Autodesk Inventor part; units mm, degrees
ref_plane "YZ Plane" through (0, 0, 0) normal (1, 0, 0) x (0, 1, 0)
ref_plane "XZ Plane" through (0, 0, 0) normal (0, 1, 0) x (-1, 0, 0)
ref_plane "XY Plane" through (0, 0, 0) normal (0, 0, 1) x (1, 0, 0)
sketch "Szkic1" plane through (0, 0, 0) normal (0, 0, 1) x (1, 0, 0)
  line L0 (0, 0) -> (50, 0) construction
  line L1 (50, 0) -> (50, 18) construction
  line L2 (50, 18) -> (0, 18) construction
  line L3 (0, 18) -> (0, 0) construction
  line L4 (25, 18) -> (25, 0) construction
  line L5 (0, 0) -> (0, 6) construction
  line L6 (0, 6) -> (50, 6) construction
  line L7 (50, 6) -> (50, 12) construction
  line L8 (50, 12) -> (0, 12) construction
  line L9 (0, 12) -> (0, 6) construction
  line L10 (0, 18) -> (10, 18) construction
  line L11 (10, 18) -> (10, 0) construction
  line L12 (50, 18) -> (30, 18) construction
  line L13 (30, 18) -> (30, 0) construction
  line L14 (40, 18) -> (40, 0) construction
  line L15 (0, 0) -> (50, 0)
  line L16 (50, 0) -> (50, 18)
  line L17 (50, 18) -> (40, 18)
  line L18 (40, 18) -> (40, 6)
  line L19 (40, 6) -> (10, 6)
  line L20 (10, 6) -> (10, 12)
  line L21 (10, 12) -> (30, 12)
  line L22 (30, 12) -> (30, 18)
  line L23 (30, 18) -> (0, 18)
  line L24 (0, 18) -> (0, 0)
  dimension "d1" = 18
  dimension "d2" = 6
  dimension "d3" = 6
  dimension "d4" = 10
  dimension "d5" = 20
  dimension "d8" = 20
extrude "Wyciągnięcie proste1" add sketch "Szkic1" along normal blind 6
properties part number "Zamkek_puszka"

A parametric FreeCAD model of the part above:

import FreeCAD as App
import Part
import Sketcher
from FreeCAD import Vector

doc = App.newDocument("Part")
body = doc.addObject("PartDesign::Body", "Body")

sketch1 = body.newObject("Sketcher::SketchObject", "Sketch")
sketch1.AttachmentSupport = (doc.getObject("XY_Plane"), [""])
sketch1.MapMode = "FlatFace"
sketch1.addGeometry(Part.LineSegment(Vector(0, 18, 0), Vector(0, 0, 0)), False)
sketch1.addGeometry(Part.LineSegment(Vector(0, 0, 0), Vector(50, 0, 0)), False)
sketch1.addGeometry(Part.LineSegment(Vector(50, 0, 0), Vector(50, 18, 0)), False)
sketch1.addGeometry(Part.LineSegment(Vector(50, 18, 0), Vector(40, 18, 0)), False)
sketch1.addGeometry(Part.LineSegment(Vector(40, 18, 0), Vector(40, 6, 0)), False)
sketch1.addGeometry(Part.LineSegment(Vector(40, 6, 0), Vector(10, 6, 0)), False)
sketch1.addGeometry(Part.LineSegment(Vector(10, 6, 0), Vector(10, 12, 0)), False)
sketch1.addGeometry(Part.LineSegment(Vector(10, 12, 0), Vector(30, 12, 0)), False)
sketch1.addGeometry(Part.LineSegment(Vector(30, 12, 0), Vector(30, 18, 0)), False)
sketch1.addGeometry(Part.LineSegment(Vector(30, 18, 0), Vector(0, 18, 0)), False)
sketch1.addConstraint(Sketcher.Constraint("Coincident", 0, 2, 1, 1))
sketch1.addConstraint(Sketcher.Constraint("Coincident", 1, 2, 2, 1))
sketch1.addConstraint(Sketcher.Constraint("Coincident", 2, 2, 3, 1))
sketch1.addConstraint(Sketcher.Constraint("Coincident", 3, 2, 4, 1))
sketch1.addConstraint(Sketcher.Constraint("Coincident", 4, 2, 5, 1))
sketch1.addConstraint(Sketcher.Constraint("Coincident", 5, 2, 6, 1))
sketch1.addConstraint(Sketcher.Constraint("Coincident", 6, 2, 7, 1))
sketch1.addConstraint(Sketcher.Constraint("Coincident", 7, 2, 8, 1))
sketch1.addConstraint(Sketcher.Constraint("Coincident", 8, 2, 9, 1))
sketch1.addConstraint(Sketcher.Constraint("Coincident", 9, 2, 0, 1))
sketch1.addConstraint(Sketcher.Constraint("Vertical", 0))
sketch1.addConstraint(Sketcher.Constraint("Horizontal", 1))
sketch1.addConstraint(Sketcher.Constraint("Vertical", 2))
sketch1.addConstraint(Sketcher.Constraint("Horizontal", 3))
sketch1.addConstraint(Sketcher.Constraint("Vertical", 4))
sketch1.addConstraint(Sketcher.Constraint("Horizontal", 5))
sketch1.addConstraint(Sketcher.Constraint("Vertical", 6))
sketch1.addConstraint(Sketcher.Constraint("Horizontal", 7))
sketch1.addConstraint(Sketcher.Constraint("Vertical", 8))
sketch1.addConstraint(Sketcher.Constraint("Horizontal", 9))
sketch1.addConstraint(Sketcher.Constraint("Coincident", 0, 2, -1, 1))
sketch1.addConstraint(Sketcher.Constraint("Horizontal", 3, 2, 8, 2))
sketch1.addConstraint(Sketcher.Constraint("Equal", 5, 9))
sketch1.addConstraint(Sketcher.Constraint("Equal", 6, 8))
sketch1.addConstraint(Sketcher.Constraint("DistanceX", 3, 2, 3, 1, 10.0))
sketch1.addConstraint(Sketcher.Constraint("DistanceX", 7, 1, 7, 2, 20.0))
sketch1.addConstraint(Sketcher.Constraint("DistanceY", 0, 2, 0, 1, 18.0))
sketch1.addConstraint(Sketcher.Constraint("DistanceY", 6, 1, 6, 2, 6.0))
sketch1.addConstraint(Sketcher.Constraint("DistanceX", -1, 1, 5, 2, 10.0))
pad1 = body.newObject("PartDesign::Pad", "Pad")
pad1.Profile = sketch1
pad1.Length = 6

doc.recompute()
